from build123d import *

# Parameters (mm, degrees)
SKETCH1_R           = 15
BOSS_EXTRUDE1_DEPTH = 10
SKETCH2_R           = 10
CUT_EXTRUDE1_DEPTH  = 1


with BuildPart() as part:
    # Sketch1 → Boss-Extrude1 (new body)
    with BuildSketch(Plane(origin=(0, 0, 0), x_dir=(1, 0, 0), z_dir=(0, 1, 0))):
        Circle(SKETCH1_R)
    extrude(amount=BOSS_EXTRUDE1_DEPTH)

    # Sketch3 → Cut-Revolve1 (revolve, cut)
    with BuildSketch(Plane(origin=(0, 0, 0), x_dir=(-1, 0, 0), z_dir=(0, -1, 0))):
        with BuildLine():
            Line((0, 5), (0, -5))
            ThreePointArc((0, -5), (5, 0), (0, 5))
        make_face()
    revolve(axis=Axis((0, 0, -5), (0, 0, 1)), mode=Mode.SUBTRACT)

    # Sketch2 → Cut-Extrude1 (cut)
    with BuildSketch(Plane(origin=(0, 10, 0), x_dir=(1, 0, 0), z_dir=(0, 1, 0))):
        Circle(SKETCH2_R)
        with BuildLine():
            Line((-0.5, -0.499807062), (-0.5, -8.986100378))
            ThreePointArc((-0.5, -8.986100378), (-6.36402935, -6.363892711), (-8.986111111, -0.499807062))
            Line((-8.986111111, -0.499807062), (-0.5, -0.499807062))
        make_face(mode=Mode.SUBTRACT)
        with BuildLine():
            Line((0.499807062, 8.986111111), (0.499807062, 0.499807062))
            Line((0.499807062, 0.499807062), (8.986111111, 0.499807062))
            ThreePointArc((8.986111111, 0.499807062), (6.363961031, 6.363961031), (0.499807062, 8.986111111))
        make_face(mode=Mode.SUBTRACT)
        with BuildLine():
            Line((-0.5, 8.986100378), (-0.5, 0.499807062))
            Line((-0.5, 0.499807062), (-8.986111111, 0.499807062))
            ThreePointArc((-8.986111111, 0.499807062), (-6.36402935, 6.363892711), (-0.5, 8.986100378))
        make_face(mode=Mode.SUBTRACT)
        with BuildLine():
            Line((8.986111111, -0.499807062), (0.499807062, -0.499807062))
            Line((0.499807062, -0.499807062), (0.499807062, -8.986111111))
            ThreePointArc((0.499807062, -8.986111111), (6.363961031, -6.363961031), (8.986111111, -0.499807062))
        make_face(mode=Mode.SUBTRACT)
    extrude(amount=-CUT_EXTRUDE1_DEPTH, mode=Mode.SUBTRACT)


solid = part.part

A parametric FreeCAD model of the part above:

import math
import FreeCAD as App
import Part
import Sketcher
from FreeCAD import Vector

doc = App.newDocument("Part")
params = doc.addObject("Spreadsheet::Sheet", "Params")
for row, (alias, value) in enumerate([
    ("sketch1_diameter", "30 mm"),
    ("pad1_length", "10 mm"),
    ("sketch2_radius", "5 mm"),
    ("groove_angle", "360 deg"),
    ("sketch3_diameter", "20 mm"),
    ("sketch3_radius", "9 mm"),
    ("pocket1_length", "1 mm"),
], start=1):
    params.set(f"A{row}", alias)
    params.set(f"B{row}", "=" + value)
    params.setAlias(f"B{row}", alias)

body = doc.addObject("PartDesign::Body", "Body")

# Sketch on XZ plane
sketch1 = doc.addObject("Sketcher::SketchObject", "Sketch")
body.addObject(sketch1)
sketch1.AttachmentSupport = (doc.XZ_Plane, [""])
sketch1.MapMode = "FlatFace"
sketch1.addGeometry(Part.Circle(Vector(0, 0, 0), Vector(0, 0, 1), 15), False)
sketch1.addConstraint([
    Sketcher.Constraint("Coincident", 0, 3, -1, 1),
    Sketcher.Constraint("Diameter", 0, 30.0),
])
sketch1.setExpression("Constraints[1]", "Params.sketch1_diameter")
pad1 = doc.addObject("PartDesign::Pad", "Pad")
body.addObject(pad1)
pad1.Profile = sketch1
pad1.setExpression("Length", "Params.pad1_length")
pad1.Reversed = True

# Sketch on XZ plane
sketch2 = doc.addObject("Sketcher::SketchObject", "Sketch001")
body.addObject(sketch2)
sketch2.AttachmentSupport = (doc.XZ_Plane, [""])
sketch2.MapMode = "FlatFace"
sketch2.addGeometry([
    Part.LineSegment(Vector(0, -5, 0), Vector(0, 5, 0)),
    Part.ArcOfCircle(Part.Circle(Vector(0, 0, 0), Vector(0, 0, 1), 5), math.radians(90), math.radians(270)),
], False)
sketch2.addConstraint([
    Sketcher.Constraint("Coincident", 0, 1, 1, 2),
    Sketcher.Constraint("Coincident", 1, 1, 0, 2),
    Sketcher.Constraint("Vertical", 0),
    Sketcher.Constraint("Coincident", 1, 3, -1, 1),
    Sketcher.Constraint("PointOnObject", 0, 1, -2),
    Sketcher.Constraint("Radius", 1, 5.0),
])
sketch2.setExpression("Constraints[5]", "Params.sketch2_radius")
groove = doc.addObject("PartDesign::Groove", "Groove")
body.addObject(groove)
groove.Profile = sketch2
groove.ReferenceAxis = (sketch2, ["V_Axis"])
groove.setExpression("Angle", "Params.groove_angle")

# Sketch on XZ plane
sketch3 = doc.addObject("Sketcher::SketchObject", "Sketch002")
body.addObject(sketch3)
sketch3.AttachmentSupport = (doc.XZ_Plane, [""])
sketch3.MapMode = "FlatFace"
sketch3.AttachmentOffset = App.Placement(Vector(0, 0, -10), App.Rotation())
sketch3.addGeometry([
    Part.Circle(Vector(0, 0, 0), Vector(0, 0, 1), 10),  # 0
    Part.LineSegment(Vector(-8.986111, 0.499807, 0), Vector(-0.5, 0.499807, 0)),  # 1
    Part.LineSegment(Vector(-0.5, 0.499807, 0), Vector(-0.5, 8.9861, 0)),  # 2
    Part.ArcOfCircle(Part.Circle(Vector(0, 0, 0), Vector(0, 0, 1), 9), math.radians(93.184739), math.radians(176.816492)),  # 3
    Part.LineSegment(Vector(0.499807, 0.499807, 0), Vector(8.986111, 0.499807, 0)),  # 4
    Part.ArcOfCircle(Part.Circle(Vector(0, 0, 0), Vector(0, 0, 1), 9), math.radians(3.183508), math.radians(86.816492)),  # 5
    Part.LineSegment(Vector(0.499807, 8.986111, 0), Vector(0.499807, 0.499807, 0)),  # 6
    Part.ArcOfCircle(Part.Circle(Vector(0, 0, 0), Vector(0, 0, 1), 9), math.radians(-176.816492), math.radians(-93.184739)),  # 7
    Part.LineSegment(Vector(-0.5, -8.9861, 0), Vector(-0.5, -0.499807, 0)),  # 8
    Part.LineSegment(Vector(-0.5, -0.499807, 0), Vector(-8.986111, -0.499807, 0)),  # 9
    Part.LineSegment(Vector(0.499807, -0.499807, 0), Vector(0.499807, -8.986111, 0)),  # 10
    Part.ArcOfCircle(Part.Circle(Vector(0, 0, 0), Vector(0, 0, 1), 9), math.radians(-86.816492), math.radians(-3.183508)),  # 11
    Part.LineSegment(Vector(8.986111, -0.499807, 0), Vector(0.499807, -0.499807, 0)),  # 12
], False)
sketch3.addConstraint([
    Sketcher.Constraint("Coincident", 1, 2, 2, 1),
    Sketcher.Constraint("Coincident", 2, 2, 3, 1),
    Sketcher.Constraint("Coincident", 3, 2, 1, 1),
    Sketcher.Constraint("Coincident", 4, 2, 5, 1),
    Sketcher.Constraint("Coincident", 5, 2, 6, 1),
    Sketcher.Constraint("Coincident", 6, 2, 4, 1),
    Sketcher.Constraint("Coincident", 7, 2, 8, 1),
    Sketcher.Constraint("Coincident", 8, 2, 9, 1),
    Sketcher.Constraint("Coincident", 9, 2, 7, 1),
    Sketcher.Constraint("Coincident", 10, 2, 11, 1),
    Sketcher.Constraint("Coincident", 11, 2, 12, 1),
    Sketcher.Constraint("Coincident", 12, 2, 10, 1),
    Sketcher.Constraint("Horizontal", 1),
    Sketcher.Constraint("Vertical", 2),
    Sketcher.Constraint("Horizontal", 4),
    Sketcher.Constraint("Vertical", 6),
    Sketcher.Constraint("Vertical", 8),
    Sketcher.Constraint("Horizontal", 9),
    Sketcher.Constraint("Vertical", 10),
    Sketcher.Constraint("Horizontal", 12),
    Sketcher.Constraint("Coincident", 0, 3, -1, 1),
    Sketcher.Constraint("Coincident", 3, 3, -1, 1),
    Sketcher.Constraint("Coincident", 5, 3, -1, 1),
    Sketcher.Constraint("Coincident", 7, 3, -1, 1),
    Sketcher.Constraint("Coincident", 11, 3, -1, 1),
    Sketcher.Constraint("Equal", 3, 5),
    Sketcher.Constraint("Equal", 5, 7),
    Sketcher.Constraint("Equal", 7, 11),
    Sketcher.Constraint("Symmetric", 1, 2, 8, 2, -1),
    Sketcher.Constraint("Symmetric", 6, 2, 12, 2, -1),
    Sketcher.Constraint("Horizontal", 3, 2, 4, 2),
    Sketcher.Constraint("Equal", 12, 6),
    Sketcher.Constraint("Diameter", 0, 20.0),
    Sketcher.Constraint("Radius", 3, 9.0),
    Sketcher.Constraint("DistanceX", 1, 2, -1, 1, 0.5),
    Sketcher.Constraint("DistanceX", 1, 1, 1, 2, 8.486111),
])
sketch3.setExpression("Constraints[32]", "Params.sketch3_diameter")
sketch3.setExpression("Constraints[33]", "Params.sketch3_radius")
pocket1 = doc.addObject("PartDesign::Pocket", "Pocket")
body.addObject(pocket1)
pocket1.Profile = sketch3
pocket1.setExpression("Length", "Params.pocket1_length")
pocket1.Reversed = True

doc.recompute()
